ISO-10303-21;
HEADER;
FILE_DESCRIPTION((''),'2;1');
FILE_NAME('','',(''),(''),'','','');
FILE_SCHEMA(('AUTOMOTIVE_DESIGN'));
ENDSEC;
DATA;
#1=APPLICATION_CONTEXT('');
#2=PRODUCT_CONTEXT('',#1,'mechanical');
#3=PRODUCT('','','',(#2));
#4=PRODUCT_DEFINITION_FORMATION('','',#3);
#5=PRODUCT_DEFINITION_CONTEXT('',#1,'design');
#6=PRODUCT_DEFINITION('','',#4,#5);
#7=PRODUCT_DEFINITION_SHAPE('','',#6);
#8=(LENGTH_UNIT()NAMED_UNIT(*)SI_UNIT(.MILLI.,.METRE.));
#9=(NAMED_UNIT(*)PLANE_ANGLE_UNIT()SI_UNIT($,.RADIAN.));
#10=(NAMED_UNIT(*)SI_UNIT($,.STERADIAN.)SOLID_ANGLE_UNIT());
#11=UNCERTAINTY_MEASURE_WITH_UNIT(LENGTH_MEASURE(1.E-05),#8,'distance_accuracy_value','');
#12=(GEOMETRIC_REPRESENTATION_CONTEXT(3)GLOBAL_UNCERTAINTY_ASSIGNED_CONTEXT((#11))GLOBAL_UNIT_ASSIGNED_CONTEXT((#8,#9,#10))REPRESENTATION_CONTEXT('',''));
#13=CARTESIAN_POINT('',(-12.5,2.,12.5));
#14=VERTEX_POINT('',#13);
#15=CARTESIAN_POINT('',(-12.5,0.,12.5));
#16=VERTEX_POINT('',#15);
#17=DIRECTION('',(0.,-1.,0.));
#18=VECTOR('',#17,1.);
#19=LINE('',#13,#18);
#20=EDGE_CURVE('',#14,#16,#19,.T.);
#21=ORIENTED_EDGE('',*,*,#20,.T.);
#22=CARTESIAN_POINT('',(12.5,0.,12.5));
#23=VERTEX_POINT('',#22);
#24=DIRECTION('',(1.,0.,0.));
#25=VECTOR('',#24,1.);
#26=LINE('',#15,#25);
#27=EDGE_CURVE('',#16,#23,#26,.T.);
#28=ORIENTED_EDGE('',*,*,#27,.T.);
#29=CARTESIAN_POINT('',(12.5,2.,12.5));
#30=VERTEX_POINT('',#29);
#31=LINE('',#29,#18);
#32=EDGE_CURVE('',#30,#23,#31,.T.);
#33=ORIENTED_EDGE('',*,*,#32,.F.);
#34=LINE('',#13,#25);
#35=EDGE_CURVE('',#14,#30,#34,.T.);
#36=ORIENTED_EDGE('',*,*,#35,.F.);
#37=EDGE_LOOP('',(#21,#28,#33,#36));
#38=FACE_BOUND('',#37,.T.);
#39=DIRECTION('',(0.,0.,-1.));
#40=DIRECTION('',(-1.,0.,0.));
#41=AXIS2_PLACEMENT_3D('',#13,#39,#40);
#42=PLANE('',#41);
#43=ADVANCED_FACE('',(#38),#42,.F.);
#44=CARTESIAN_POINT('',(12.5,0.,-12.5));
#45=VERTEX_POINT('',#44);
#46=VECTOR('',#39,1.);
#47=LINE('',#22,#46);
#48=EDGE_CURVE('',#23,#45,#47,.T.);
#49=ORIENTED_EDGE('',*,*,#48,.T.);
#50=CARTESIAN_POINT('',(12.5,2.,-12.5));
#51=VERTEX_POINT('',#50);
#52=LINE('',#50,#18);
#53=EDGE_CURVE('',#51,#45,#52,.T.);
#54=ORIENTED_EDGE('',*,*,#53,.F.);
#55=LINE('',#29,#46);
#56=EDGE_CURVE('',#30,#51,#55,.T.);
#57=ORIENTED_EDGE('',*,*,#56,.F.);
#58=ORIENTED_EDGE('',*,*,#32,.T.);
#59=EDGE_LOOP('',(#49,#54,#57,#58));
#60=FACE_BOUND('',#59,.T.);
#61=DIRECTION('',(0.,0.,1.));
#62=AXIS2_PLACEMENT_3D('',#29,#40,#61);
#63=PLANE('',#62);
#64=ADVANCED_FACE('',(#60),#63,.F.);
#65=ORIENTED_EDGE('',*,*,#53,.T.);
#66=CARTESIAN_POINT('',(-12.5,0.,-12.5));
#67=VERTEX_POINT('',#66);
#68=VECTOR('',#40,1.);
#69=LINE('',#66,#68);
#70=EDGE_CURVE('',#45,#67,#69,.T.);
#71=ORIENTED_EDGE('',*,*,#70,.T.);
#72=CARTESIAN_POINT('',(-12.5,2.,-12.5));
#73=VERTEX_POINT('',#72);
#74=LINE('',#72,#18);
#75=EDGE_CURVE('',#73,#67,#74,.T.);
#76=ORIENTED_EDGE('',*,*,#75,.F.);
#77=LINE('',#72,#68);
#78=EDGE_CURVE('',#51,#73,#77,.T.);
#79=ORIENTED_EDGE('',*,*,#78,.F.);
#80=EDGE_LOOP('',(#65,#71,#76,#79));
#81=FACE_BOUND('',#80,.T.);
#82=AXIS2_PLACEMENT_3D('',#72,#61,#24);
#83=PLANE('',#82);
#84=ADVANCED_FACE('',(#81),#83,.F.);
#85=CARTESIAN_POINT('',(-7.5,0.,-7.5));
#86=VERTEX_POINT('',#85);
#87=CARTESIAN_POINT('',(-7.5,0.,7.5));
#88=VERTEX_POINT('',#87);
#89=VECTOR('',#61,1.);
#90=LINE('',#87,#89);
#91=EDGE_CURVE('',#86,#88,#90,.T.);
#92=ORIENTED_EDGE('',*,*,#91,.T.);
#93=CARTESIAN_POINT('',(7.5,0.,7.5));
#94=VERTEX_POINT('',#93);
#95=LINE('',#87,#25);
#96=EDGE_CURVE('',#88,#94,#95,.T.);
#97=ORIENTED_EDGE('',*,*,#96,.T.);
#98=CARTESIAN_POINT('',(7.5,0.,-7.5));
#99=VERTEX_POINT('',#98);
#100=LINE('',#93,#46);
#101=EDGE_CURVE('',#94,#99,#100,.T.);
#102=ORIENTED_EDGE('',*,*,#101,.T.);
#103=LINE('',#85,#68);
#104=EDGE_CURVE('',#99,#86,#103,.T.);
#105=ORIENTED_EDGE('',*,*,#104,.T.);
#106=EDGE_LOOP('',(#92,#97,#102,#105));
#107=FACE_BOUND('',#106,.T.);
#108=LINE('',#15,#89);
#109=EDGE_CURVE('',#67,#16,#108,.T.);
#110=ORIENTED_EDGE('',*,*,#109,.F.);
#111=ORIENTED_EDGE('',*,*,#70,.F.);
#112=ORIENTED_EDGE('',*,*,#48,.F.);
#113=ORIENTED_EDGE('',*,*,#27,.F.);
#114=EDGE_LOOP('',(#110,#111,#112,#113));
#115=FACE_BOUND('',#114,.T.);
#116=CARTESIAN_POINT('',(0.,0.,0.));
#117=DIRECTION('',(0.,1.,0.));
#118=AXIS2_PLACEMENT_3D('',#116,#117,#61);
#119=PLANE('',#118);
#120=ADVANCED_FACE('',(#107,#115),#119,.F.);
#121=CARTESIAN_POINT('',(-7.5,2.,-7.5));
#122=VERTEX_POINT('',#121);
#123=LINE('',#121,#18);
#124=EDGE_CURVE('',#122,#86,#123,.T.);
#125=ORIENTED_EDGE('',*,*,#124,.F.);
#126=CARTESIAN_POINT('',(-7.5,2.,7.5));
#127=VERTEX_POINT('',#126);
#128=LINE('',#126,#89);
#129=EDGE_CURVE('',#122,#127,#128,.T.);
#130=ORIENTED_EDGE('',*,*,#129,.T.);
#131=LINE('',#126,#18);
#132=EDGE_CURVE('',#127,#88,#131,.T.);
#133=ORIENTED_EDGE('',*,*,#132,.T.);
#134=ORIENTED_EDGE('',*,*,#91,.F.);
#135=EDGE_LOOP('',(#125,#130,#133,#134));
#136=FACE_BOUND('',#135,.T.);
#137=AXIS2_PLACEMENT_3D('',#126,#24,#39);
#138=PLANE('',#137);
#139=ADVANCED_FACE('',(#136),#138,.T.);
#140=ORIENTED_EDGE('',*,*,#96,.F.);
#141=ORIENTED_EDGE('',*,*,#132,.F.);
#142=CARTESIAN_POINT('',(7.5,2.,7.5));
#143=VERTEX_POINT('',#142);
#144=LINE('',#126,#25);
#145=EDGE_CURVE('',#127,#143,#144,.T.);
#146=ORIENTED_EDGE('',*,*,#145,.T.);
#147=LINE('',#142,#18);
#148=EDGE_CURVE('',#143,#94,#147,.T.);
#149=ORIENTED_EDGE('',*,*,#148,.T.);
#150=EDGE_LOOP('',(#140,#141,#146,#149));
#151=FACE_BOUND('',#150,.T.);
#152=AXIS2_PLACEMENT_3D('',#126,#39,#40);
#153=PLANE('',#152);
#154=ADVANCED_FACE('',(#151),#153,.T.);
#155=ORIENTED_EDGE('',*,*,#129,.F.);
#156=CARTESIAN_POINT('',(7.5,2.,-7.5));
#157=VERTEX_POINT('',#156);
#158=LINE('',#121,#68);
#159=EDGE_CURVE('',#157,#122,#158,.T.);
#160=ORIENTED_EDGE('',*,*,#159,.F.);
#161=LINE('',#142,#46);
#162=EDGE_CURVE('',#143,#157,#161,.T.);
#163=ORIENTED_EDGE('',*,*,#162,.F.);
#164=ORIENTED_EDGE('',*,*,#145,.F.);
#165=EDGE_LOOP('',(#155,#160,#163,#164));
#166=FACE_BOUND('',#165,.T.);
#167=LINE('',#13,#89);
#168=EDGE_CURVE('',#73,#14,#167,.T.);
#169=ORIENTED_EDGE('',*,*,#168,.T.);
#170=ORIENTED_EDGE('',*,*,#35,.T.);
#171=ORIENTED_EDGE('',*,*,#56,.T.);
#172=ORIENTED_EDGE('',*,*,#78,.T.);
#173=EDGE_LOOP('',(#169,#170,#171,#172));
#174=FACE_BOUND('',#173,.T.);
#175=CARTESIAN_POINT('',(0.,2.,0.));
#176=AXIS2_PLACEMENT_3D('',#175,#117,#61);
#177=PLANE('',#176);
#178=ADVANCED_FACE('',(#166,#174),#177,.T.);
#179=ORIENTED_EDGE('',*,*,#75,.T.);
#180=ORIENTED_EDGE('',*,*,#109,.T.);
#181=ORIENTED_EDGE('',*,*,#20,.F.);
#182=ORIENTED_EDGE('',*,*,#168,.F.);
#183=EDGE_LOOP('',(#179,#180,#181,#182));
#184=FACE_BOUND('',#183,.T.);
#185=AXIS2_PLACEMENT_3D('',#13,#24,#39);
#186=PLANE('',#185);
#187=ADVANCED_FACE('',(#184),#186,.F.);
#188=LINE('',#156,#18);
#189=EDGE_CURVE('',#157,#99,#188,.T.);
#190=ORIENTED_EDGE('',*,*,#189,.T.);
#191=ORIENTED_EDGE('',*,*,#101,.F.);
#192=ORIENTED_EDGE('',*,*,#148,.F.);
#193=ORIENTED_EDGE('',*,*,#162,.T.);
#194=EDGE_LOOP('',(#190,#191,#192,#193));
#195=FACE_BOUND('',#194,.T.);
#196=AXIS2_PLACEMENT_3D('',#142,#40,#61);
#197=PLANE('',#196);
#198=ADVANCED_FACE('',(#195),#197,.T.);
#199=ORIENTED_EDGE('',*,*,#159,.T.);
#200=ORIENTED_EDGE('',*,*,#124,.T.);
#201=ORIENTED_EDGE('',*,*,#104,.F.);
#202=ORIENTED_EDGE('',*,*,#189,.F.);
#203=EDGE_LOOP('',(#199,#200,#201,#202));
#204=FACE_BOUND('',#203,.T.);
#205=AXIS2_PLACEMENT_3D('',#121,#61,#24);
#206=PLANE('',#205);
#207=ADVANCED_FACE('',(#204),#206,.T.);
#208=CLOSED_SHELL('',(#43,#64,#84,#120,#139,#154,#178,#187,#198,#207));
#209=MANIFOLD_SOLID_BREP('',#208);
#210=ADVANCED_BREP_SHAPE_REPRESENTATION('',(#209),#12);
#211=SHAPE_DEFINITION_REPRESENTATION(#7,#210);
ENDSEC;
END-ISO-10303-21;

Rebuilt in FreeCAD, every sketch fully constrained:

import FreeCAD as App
import Part
import Sketcher

V = App.Vector
Q = App.Units.Quantity

doc = App.newDocument("Part")
params = doc.addObject("Spreadsheet::Sheet", "Params")
for row, (alias, value) in enumerate([
    ("sketch1_width", "25 mm"),
    ("sketch1_width2", "15 mm"),
    ("pad1_length", "2 mm"),
], start=1):
    params.set(f"A{row}", alias)
    params.set(f"B{row}", "=" + value)
    params.setAlias(f"B{row}", alias)

body = doc.addObject("PartDesign::Body", "Body")

# Sketch on XZ plane
sketch1 = body.newObject("Sketcher::SketchObject", "Sketch")
sketch1.AttachmentSupport = (doc.getObject("XZ_Plane"), [""])
sketch1.MapMode = "FlatFace"
sketch1.addGeometry([
    Part.LineSegment(V(-12, -12, 0), V(-12, 12, 0)),  # 0
    Part.LineSegment(V(-12, 12, 0), V(12, 12, 0)),  # 1
    Part.LineSegment(V(12, 12, 0), V(12, -12, 0)),  # 2
    Part.LineSegment(V(12, -12, 0), V(-12, -12, 0)),  # 3
    Part.LineSegment(V(8, 8, 0), V(-8, 8, 0)),  # 4
    Part.LineSegment(V(-8, 8, 0), V(-8, -8, 0)),  # 5
    Part.LineSegment(V(-8, -8, 0), V(8, -8, 0)),  # 6
    Part.LineSegment(V(8, -8, 0), V(8, 8, 0)),  # 7
], False)
sketch1.addConstraint([
    Sketcher.Constraint("Coincident", 0, 2, 1, 1),
    Sketcher.Constraint("Coincident", 1, 2, 2, 1),
    Sketcher.Constraint("Coincident", 2, 2, 3, 1),
    Sketcher.Constraint("Coincident", 3, 2, 0, 1),
    Sketcher.Constraint("Coincident", 4, 2, 5, 1),
    Sketcher.Constraint("Coincident", 5, 2, 6, 1),
    Sketcher.Constraint("Coincident", 6, 2, 7, 1),
    Sketcher.Constraint("Coincident", 7, 2, 4, 1),
    Sketcher.Constraint("Vertical", 0),
    Sketcher.Constraint("Horizontal", 1),
    Sketcher.Constraint("Vertical", 2),
    Sketcher.Constraint("Horizontal", 3),
    Sketcher.Constraint("Horizontal", 4),
    Sketcher.Constraint("Vertical", 5),
    Sketcher.Constraint("Horizontal", 6),
    Sketcher.Constraint("Vertical", 7),
    Sketcher.Constraint("Symmetric", 0, 2, 2, 2, -1, 1),
    Sketcher.Constraint("Symmetric", 4, 2, 6, 2, -1, 1),
    Sketcher.Constraint("Equal", 3, 0),
    Sketcher.Constraint("Equal", 6, 5),
    Sketcher.Constraint("DistanceX", 1, 1, 1, 2, Q("25 mm")),
    Sketcher.Constraint("DistanceX", 4, 2, 4, 1, Q("15 mm")),
])
sketch1.setExpression("Constraints[20]", "Params.sketch1_width")
sketch1.setExpression("Constraints[21]", "Params.sketch1_width2")
pad1 = body.newObject("PartDesign::Pad", "Pad")
pad1.Profile = sketch1
pad1.setExpression("Length", "Params.pad1_length")
pad1.Reversed = True

doc.recompute()
